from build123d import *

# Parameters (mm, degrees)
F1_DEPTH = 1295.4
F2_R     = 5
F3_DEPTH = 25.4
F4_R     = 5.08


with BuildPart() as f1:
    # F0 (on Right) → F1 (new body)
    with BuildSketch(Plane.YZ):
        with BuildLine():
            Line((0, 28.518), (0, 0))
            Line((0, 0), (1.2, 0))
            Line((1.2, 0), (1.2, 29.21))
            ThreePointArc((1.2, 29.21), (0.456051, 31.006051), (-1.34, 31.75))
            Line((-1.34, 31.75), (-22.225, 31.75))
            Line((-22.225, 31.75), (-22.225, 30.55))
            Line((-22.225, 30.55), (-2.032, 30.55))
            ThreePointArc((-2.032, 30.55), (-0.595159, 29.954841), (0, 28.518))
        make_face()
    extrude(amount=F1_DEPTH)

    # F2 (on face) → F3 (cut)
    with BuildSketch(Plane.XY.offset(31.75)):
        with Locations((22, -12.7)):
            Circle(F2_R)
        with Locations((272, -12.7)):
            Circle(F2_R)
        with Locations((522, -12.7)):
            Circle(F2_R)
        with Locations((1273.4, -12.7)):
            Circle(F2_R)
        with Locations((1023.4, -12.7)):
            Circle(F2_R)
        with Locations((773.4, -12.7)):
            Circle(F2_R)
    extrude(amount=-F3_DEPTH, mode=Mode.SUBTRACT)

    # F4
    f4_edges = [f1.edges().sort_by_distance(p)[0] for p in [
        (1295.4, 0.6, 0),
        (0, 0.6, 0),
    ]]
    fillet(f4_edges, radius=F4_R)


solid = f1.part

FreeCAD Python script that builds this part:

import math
import FreeCAD as App
import Part
import Sketcher

V = App.Vector
Q = App.Units.Quantity


def edges_at(feature, points):
    """Names of the edges that pass closest to the given points."""
    edges = feature.Shape.Edges
    near = lambda p: min(range(len(edges)), key=lambda i: edges[i].distToShape(Part.Vertex(*p))[0])
    return sorted({f"Edge{near(p) + 1}" for p in points})

doc = App.newDocument("Part")
body = doc.addObject("PartDesign::Body", "Body")

sketch1 = doc.addObject("Sketcher::SketchObject", "Sketch")
body.addObject(sketch1)
sketch1.AttachmentSupport = (doc.YZ_Plane, [""])
sketch1.MapMode = "FlatFace"
sketch1.addGeometry([
    Part.LineSegment(V(0, 28.5, 0), V(0, 0, 0)),
    Part.LineSegment(V(0, 0, 0), V(1.2, 0, 0)),
    Part.LineSegment(V(1.2, 0, 0), V(1.2, 29.2, 0)),
    Part.ArcOfCircle(Part.Circle(V(-1.3, 29.2, 0), V(0, 0, 1), 2.5), math.radians(0), math.radians(90)),
    Part.LineSegment(V(-1.3, 31.8, 0), V(-22.2, 31.8, 0)),
    Part.LineSegment(V(-22.2, 31.8, 0), V(-22.2, 30.6, 0)),
    Part.LineSegment(V(-22.2, 30.6, 0), V(-2, 30.6, 0)),
    Part.ArcOfCircle(Part.Circle(V(-2, 28.5, 0), V(0, 0, 1), 2), math.radians(0), math.radians(90)),
], False)
sketch1.addConstraint([
    Sketcher.Constraint("Coincident", 0, 2, 1, 1),
    Sketcher.Constraint("Coincident", 1, 2, 2, 1),
    Sketcher.Constraint("Tangent", 2, 2, 3, 1),
    Sketcher.Constraint("Tangent", 3, 2, 4, 1),
    Sketcher.Constraint("Coincident", 4, 2, 5, 1),
    Sketcher.Constraint("Coincident", 5, 2, 6, 1),
    Sketcher.Constraint("Tangent", 6, 2, 7, 2),
    Sketcher.Constraint("Tangent", 7, 1, 0, 1),
    Sketcher.Constraint("Vertical", 0),
    Sketcher.Constraint("Horizontal", 1),
    Sketcher.Constraint("Vertical", 2),
    Sketcher.Constraint("Horizontal", 4),
    Sketcher.Constraint("Vertical", 5),
    Sketcher.Constraint("Horizontal", 6),
    Sketcher.Constraint("Coincident", 0, 2, -1, 1),
    Sketcher.Constraint("Equal", 1, 5),
    Sketcher.Constraint("Radius", 3, Q("0.1 in")),
    Sketcher.Constraint("Radius", 7, Q("0.08 in")),
    Sketcher.Constraint("DistanceY", 2, 1, 2, 2, Q("1.15 in")),
    Sketcher.Constraint("DistanceX", 6, 1, 6, 2, Q("0.795 in")),
    Sketcher.Constraint("DistanceX", 1, 1, 1, 2, 1.2),
])
pad1 = doc.addObject("PartDesign::Pad", "Pad")
body.addObject(pad1)
pad1.Profile = sketch1
pad1.Length = Q("51 in")

sketch2 = doc.addObject("Sketcher::SketchObject", "Sketch001")
body.addObject(sketch2)
sketch2.AttachmentSupport = (doc.XY_Plane, [""])
sketch2.MapMode = "FlatFace"
sketch2.AttachmentOffset = App.Placement(V(0, 0, 1.25 * 25.4), App.Rotation())
sketch2.addGeometry([
    Part.Circle(V(22, -13, 0), V(0, 0, 1), 5),
    Part.Circle(V(272, -13, 0), V(0, 0, 1), 5),
    Part.Circle(V(522, -13, 0), V(0, 0, 1), 5),
    Part.Circle(V(1273, -13, 0), V(0, 0, 1), 5),
    Part.Circle(V(1023, -13, 0), V(0, 0, 1), 5),
    Part.Circle(V(773, -13, 0), V(0, 0, 1), 5),
], False)
sketch2.addConstraint([
    Sketcher.Constraint("Equal", 0, 1),
    Sketcher.Constraint("Equal", 1, 2),
    Sketcher.Constraint("Equal", 2, 3),
    Sketcher.Constraint("Equal", 3, 4),
    Sketcher.Constraint("Equal", 4, 5),
    Sketcher.Constraint("Horizontal", 0, 3, 1, 3),
    Sketcher.Constraint("Horizontal", 1, 3, 2, 3),
    Sketcher.Constraint("Horizontal", 2, 3, 3, 3),
    Sketcher.Constraint("Horizontal", 3, 3, 4, 3),
    Sketcher.Constraint("Horizontal", 4, 3, 5, 3),
    Sketcher.Constraint("DistanceY", 0, 3, -1, 1, Q("0.5 in")),
    Sketcher.Constraint("Diameter", 0, 10.0),
    Sketcher.Constraint("DistanceX", -1, 1, 0, 3, 22.0),
    Sketcher.Constraint("DistanceX", -1, 1, 1, 3, 272.0),
    Sketcher.Constraint("DistanceX", -1, 1, 2, 3, 522.0),
    Sketcher.Constraint("DistanceX", -1, 1, 3, 3, 1273.4),
    Sketcher.Constraint("DistanceX", -1, 1, 4, 3, 1023.4),
    Sketcher.Constraint("DistanceX", -1, 1, 5, 3, 773.4),
])
pocket1 = doc.addObject("PartDesign::Pocket", "Pocket")
body.addObject(pocket1)
pocket1.Profile = sketch2
pocket1.Length = Q("1 in")
doc.recompute()

fillet = doc.addObject("PartDesign::Fillet", "Fillet")
body.addObject(fillet)
fillet.Base = (pocket1, edges_at(pocket1, [(1295.4, 0.6, 0), (0, 0.6, 0)]))
fillet.Radius = Q("0.2 in")

doc.recompute()
